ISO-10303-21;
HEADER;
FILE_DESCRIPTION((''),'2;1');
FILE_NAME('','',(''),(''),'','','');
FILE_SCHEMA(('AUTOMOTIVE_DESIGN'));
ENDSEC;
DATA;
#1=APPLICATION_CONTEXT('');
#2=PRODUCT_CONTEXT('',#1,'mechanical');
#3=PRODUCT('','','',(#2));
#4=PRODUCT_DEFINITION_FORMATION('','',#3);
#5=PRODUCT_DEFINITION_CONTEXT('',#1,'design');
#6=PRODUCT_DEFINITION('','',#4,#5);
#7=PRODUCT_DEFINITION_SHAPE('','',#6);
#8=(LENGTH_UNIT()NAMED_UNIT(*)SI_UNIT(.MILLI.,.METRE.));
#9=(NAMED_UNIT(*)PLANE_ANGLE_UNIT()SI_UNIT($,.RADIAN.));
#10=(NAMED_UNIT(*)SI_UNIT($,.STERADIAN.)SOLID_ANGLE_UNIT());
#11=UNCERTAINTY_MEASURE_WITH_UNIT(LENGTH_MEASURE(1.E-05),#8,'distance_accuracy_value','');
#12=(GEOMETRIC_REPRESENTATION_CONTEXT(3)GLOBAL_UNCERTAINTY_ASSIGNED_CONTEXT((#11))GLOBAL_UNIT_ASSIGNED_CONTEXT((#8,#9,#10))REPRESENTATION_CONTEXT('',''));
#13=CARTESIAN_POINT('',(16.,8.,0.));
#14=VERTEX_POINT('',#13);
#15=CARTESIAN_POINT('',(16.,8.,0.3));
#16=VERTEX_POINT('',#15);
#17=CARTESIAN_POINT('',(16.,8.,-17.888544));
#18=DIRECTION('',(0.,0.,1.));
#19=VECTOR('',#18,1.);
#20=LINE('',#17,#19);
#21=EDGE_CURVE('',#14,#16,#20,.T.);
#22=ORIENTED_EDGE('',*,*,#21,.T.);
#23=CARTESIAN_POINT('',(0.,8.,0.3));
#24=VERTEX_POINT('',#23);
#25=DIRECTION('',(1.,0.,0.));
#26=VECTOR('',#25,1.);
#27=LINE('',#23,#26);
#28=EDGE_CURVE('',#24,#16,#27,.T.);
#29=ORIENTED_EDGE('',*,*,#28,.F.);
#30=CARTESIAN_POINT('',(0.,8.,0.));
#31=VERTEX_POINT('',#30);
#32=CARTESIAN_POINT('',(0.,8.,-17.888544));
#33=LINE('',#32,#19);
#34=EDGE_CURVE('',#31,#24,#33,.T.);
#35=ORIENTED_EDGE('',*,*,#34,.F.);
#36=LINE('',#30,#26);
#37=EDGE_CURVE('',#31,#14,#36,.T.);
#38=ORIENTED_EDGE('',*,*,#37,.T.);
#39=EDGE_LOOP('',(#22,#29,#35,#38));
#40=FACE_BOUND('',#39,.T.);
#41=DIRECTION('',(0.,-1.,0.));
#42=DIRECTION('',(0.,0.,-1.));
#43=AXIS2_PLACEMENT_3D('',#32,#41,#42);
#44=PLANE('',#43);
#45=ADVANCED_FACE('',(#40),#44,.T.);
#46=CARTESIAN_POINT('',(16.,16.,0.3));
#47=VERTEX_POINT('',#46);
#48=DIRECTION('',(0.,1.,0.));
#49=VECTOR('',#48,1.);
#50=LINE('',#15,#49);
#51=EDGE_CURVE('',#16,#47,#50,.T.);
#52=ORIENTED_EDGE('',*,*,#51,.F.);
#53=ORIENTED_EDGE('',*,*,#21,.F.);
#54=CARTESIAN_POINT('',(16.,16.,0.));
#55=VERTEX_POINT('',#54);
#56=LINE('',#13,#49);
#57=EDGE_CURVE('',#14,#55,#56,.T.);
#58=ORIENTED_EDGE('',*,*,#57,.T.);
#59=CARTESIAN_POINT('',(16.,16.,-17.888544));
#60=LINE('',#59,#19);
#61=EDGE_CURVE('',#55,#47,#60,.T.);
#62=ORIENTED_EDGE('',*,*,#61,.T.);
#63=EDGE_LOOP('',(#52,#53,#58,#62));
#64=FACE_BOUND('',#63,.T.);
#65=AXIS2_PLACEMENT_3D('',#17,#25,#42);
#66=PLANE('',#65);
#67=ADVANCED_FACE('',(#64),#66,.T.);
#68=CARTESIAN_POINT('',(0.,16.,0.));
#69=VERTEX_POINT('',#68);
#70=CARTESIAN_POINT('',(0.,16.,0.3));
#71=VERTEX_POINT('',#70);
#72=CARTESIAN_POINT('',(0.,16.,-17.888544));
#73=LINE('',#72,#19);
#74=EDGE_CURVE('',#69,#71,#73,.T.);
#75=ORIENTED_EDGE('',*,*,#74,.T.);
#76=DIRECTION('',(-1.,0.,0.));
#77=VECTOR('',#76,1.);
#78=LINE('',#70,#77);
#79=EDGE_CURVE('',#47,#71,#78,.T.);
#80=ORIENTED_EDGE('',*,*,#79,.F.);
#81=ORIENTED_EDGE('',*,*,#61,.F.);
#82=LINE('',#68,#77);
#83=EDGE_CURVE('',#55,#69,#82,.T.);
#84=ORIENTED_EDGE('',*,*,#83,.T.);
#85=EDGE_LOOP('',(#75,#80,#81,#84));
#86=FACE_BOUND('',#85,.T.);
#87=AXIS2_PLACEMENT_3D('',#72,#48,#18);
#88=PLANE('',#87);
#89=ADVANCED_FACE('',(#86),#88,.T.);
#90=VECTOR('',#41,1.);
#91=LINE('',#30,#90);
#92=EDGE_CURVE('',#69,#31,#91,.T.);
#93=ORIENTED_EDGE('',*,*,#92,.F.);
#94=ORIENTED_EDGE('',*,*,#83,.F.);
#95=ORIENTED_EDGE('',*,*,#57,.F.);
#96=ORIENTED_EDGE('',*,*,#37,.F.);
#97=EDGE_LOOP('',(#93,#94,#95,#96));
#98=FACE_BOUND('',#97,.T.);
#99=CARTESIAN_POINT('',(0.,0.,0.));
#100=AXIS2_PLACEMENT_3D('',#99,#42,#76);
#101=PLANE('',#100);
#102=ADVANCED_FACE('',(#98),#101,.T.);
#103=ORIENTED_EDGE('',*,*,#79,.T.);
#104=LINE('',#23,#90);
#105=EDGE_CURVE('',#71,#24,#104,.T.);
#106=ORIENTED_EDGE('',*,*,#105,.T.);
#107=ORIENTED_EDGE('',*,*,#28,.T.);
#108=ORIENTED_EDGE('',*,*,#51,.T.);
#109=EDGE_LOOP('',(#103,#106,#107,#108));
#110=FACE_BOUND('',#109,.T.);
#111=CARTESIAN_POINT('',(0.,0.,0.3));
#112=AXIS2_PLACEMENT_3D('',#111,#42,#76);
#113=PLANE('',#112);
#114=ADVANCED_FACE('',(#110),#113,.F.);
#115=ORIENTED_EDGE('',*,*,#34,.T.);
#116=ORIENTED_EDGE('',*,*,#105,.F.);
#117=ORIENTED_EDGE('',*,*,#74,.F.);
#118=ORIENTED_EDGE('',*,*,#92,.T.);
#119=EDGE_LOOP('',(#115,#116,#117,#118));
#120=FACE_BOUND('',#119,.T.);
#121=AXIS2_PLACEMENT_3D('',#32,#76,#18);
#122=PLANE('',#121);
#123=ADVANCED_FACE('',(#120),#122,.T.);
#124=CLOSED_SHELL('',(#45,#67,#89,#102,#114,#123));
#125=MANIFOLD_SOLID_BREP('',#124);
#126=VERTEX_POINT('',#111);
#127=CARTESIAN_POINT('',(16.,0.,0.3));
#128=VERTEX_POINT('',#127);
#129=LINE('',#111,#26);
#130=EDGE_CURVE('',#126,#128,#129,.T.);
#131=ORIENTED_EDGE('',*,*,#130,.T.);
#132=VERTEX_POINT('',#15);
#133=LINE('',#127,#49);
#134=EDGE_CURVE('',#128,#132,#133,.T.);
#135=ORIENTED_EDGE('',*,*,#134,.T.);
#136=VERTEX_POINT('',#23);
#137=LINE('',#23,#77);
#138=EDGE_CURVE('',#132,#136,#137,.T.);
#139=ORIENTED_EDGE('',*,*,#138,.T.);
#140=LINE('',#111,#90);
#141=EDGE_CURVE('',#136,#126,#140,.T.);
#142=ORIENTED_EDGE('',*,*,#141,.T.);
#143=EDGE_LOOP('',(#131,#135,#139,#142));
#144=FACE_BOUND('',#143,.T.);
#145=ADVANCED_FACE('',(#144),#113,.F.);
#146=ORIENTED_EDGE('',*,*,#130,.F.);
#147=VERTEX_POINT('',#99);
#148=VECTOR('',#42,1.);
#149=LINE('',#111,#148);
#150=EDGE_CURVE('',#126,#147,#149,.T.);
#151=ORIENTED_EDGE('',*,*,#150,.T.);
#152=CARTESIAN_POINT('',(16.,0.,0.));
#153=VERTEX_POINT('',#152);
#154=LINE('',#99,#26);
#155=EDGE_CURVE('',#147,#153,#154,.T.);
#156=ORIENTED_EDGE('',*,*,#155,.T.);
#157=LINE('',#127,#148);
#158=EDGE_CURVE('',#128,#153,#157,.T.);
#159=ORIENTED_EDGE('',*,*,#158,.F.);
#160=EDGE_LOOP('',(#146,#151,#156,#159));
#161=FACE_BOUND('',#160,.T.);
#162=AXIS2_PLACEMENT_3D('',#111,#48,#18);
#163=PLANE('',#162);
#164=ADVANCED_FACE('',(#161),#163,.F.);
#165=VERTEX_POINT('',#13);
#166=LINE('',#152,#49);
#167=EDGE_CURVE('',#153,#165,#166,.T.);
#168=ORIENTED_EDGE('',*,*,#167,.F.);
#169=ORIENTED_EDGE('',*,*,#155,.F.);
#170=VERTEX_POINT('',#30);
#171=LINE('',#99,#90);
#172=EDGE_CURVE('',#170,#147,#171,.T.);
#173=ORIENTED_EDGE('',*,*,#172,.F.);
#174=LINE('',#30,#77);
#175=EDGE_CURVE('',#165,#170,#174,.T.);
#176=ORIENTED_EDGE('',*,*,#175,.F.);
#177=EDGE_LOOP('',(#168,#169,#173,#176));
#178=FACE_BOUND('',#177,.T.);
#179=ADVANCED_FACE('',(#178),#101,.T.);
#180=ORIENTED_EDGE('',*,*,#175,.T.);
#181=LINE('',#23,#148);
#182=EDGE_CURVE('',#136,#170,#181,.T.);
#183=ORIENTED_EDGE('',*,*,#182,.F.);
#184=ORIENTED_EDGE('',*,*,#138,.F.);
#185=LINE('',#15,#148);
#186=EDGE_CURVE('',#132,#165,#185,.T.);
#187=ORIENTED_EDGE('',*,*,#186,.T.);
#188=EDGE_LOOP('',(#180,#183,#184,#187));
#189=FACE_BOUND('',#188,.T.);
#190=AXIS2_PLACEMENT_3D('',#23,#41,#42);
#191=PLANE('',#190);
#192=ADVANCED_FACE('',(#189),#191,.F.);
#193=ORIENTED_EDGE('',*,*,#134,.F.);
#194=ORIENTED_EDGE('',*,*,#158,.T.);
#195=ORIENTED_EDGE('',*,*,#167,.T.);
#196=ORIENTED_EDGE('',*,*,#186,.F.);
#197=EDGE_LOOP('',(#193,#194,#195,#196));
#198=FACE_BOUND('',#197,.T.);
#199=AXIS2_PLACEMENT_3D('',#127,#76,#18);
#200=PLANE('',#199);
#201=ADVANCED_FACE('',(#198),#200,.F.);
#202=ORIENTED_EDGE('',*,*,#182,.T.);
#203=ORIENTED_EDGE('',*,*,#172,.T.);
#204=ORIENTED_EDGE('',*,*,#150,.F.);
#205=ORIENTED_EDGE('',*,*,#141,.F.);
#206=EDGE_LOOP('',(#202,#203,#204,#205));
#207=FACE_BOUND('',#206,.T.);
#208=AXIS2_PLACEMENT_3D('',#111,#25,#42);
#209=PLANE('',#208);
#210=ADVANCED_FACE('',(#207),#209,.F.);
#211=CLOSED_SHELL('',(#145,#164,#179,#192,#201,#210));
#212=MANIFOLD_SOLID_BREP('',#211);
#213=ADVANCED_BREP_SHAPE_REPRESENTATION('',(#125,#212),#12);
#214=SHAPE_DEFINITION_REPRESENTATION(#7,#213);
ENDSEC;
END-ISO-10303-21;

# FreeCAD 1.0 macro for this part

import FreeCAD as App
import Part
import Sketcher

V = App.Vector

doc = App.newDocument("Part")
params = doc.addObject("Spreadsheet::Sheet", "Params")
for row, (alias, value) in enumerate([
    ("sketch1_width", "16 mm"),
    ("sketch1_height", "8 mm"),
    ("pad1_length", "0.3 mm"),
    ("sketch2_width", "16 mm"),
    ("sketch2_height", "8 mm"),
    ("pad2_length", "0.3 mm"),
], start=1):
    params.set(f"A{row}", alias)
    params.set(f"B{row}", "=" + value)
    params.setAlias(f"B{row}", alias)

body = doc.addObject("PartDesign::Body", "Body")

sketch1 = body.newObject("Sketcher::SketchObject", "Sketch")
sketch1.AttachmentSupport = (doc.getObject("XY_Plane"), [""])
sketch1.MapMode = "FlatFace"
sketch1.addGeometry([
    Part.LineSegment(V(0, 8, 0), V(0, 0, 0)),
    Part.LineSegment(V(0, 0, 0), V(16, 0, 0)),
    Part.LineSegment(V(16, 0, 0), V(16, 8, 0)),
    Part.LineSegment(V(16, 8, 0), V(0, 8, 0)),
], False)
sketch1.addConstraint([
    Sketcher.Constraint("Coincident", 0, 2, 1, 1),
    Sketcher.Constraint("Coincident", 1, 2, 2, 1),
    Sketcher.Constraint("Coincident", 2, 2, 3, 1),
    Sketcher.Constraint("Coincident", 3, 2, 0, 1),
    Sketcher.Constraint("Vertical", 0),
    Sketcher.Constraint("Horizontal", 1),
    Sketcher.Constraint("Vertical", 2),
    Sketcher.Constraint("Horizontal", 3),
    Sketcher.Constraint("Coincident", 0, 2, -1, 1),
    Sketcher.Constraint("DistanceX", 1, 1, 1, 2, 16.0),
    Sketcher.Constraint("DistanceY", 0, 2, 0, 1, 8.0),
])
sketch1.setExpression("Constraints[9]", "Params.sketch1_width")
sketch1.setExpression("Constraints[10]", "Params.sketch1_height")
pad1 = body.newObject("PartDesign::Pad", "Pad")
pad1.Profile = sketch1
pad1.setExpression("Length", "Params.pad1_length")
body2 = doc.addObject("PartDesign::Body", "Body001")

sketch2 = body2.newObject("Sketcher::SketchObject", "Sketch001")
sketch2.AttachmentSupport = (doc.getObject("XY_Plane001"), [""])
sketch2.MapMode = "FlatFace"
sketch2.AttachmentOffset = App.Placement(V(0, 0, 0.3), App.Rotation())
sketch2.addGeometry([
    Part.LineSegment(V(0, 16, 0), V(0, 8, 0)),
    Part.LineSegment(V(0, 8, 0), V(16, 8, 0)),
    Part.LineSegment(V(16, 8, 0), V(16, 16, 0)),
    Part.LineSegment(V(16, 16, 0), V(0, 16, 0)),
], False)
sketch2.addConstraint([
    Sketcher.Constraint("Coincident", 0, 2, 1, 1),
    Sketcher.Constraint("Coincident", 1, 2, 2, 1),
    Sketcher.Constraint("Coincident", 2, 2, 3, 1),
    Sketcher.Constraint("Coincident", 3, 2, 0, 1),
    Sketcher.Constraint("Vertical", 0),
    Sketcher.Constraint("Horizontal", 1),
    Sketcher.Constraint("Vertical", 2),
    Sketcher.Constraint("Horizontal", 3),
    Sketcher.Constraint("PointOnObject", 0, 2, -2),
    Sketcher.Constraint("DistanceX", 1, 1, 1, 2, 16.0),
    Sketcher.Constraint("DistanceY", 0, 2, 0, 1, 8.0),
    Sketcher.Constraint("DistanceY", -1, 1, 0, 2, 8.0),
])
sketch2.setExpression("Constraints[9]", "Params.sketch2_width")
sketch2.setExpression("Constraints[10]", "Params.sketch2_height")
pad2 = body2.newObject("PartDesign::Pad", "Pad001")
pad2.Profile = sketch2
pad2.setExpression("Length", "Params.pad2_length")
pad2.Reversed = True

doc.recompute()
